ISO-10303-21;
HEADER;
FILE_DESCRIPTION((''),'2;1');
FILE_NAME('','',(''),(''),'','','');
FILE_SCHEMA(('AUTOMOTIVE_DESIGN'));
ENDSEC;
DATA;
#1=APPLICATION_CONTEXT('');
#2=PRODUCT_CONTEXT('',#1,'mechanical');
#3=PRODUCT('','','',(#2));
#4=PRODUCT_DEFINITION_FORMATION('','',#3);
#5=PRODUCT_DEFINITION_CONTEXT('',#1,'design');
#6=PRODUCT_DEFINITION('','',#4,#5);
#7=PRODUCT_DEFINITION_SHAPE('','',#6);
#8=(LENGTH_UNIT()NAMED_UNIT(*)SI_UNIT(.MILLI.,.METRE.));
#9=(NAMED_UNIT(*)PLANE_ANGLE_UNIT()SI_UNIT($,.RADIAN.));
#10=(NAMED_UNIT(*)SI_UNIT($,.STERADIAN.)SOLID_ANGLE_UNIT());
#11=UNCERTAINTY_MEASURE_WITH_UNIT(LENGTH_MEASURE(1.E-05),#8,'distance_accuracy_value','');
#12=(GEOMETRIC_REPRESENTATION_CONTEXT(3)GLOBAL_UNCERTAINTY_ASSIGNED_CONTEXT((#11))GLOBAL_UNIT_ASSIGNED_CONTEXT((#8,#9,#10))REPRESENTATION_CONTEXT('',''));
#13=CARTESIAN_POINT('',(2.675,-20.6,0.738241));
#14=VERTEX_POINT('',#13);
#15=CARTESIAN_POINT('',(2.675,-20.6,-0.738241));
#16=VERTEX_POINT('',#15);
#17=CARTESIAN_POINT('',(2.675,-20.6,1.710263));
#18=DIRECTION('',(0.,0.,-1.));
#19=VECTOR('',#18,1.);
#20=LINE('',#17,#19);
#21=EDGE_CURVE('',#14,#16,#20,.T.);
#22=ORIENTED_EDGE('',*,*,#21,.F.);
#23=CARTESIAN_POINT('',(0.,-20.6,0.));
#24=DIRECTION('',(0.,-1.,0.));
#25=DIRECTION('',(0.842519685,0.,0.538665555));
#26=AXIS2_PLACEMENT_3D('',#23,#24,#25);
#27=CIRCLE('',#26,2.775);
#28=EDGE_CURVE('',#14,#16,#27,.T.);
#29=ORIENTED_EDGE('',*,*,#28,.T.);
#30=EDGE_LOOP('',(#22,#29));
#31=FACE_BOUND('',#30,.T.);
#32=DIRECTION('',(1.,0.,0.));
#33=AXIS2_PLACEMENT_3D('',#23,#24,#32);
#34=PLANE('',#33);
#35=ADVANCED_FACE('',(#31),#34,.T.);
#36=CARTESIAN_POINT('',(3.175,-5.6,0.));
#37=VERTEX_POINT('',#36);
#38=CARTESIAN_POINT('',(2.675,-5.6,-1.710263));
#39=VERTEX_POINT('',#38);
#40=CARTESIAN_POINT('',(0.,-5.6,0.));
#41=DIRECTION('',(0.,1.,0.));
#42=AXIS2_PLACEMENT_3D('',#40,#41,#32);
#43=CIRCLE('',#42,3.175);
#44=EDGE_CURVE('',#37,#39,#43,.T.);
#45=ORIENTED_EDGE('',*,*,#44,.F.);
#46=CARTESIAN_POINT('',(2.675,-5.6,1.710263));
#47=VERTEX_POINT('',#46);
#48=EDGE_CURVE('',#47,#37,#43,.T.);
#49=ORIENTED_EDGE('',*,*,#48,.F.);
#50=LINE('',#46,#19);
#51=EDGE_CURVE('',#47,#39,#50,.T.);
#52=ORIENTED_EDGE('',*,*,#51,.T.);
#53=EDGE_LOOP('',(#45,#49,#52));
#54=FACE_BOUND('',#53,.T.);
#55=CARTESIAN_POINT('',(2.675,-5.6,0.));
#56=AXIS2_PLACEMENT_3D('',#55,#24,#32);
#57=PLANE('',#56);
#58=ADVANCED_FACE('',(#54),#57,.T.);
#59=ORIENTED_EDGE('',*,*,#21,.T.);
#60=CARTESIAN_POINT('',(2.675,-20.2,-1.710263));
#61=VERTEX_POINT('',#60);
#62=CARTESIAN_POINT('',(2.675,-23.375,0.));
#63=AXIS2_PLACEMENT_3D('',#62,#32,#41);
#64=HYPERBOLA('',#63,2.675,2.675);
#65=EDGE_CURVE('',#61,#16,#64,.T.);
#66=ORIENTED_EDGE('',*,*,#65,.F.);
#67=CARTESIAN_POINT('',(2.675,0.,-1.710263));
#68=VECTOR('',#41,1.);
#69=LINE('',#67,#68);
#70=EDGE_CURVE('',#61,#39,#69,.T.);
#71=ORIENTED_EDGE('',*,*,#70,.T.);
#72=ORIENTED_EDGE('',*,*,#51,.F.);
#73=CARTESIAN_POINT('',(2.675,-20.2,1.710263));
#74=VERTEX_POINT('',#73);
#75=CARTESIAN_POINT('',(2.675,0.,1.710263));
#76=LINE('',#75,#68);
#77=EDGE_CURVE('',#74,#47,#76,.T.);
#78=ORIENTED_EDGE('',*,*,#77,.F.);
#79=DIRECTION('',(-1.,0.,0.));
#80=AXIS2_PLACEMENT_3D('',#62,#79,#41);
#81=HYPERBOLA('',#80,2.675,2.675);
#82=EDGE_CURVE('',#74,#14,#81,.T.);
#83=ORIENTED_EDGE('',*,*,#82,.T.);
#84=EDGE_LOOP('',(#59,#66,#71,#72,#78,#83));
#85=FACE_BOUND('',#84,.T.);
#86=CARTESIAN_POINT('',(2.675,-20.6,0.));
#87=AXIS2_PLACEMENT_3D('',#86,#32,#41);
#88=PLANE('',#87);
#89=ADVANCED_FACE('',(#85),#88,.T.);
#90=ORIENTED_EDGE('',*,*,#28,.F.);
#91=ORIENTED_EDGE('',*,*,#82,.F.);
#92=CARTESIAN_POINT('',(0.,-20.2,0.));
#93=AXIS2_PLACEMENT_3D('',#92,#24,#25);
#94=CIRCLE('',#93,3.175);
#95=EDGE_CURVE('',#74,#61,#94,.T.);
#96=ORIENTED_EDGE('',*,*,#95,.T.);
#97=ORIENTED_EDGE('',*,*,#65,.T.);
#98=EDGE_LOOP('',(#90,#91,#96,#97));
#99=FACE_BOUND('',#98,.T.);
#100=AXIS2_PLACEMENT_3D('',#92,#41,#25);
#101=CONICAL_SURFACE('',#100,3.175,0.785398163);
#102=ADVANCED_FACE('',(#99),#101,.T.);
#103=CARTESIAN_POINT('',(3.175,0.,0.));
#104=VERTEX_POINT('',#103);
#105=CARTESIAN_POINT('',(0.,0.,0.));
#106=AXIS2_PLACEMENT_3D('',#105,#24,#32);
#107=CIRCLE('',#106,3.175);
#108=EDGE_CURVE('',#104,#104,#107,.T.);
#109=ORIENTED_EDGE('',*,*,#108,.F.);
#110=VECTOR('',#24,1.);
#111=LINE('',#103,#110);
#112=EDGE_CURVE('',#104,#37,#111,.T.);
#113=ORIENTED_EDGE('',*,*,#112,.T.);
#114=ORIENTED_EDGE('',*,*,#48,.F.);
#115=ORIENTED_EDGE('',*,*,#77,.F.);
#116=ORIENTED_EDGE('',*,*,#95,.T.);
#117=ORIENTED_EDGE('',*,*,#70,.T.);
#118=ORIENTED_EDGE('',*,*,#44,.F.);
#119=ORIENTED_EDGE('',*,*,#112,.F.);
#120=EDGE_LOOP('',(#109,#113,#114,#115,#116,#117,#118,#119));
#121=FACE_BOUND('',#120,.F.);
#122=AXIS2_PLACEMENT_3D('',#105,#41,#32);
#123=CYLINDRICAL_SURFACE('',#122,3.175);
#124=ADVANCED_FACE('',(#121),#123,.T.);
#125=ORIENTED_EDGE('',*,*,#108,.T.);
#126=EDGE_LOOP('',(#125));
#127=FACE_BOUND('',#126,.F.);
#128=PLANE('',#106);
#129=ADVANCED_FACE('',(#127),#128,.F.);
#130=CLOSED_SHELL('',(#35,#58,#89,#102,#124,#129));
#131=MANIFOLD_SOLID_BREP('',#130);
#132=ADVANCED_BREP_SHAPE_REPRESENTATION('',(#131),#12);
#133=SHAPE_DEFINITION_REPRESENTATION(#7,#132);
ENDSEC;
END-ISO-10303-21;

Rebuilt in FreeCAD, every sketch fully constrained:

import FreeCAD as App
import Part
import Sketcher
from FreeCAD import Vector
Q = App.Units.Quantity


def edges_at(feature, points):
    """Names of the edges that pass closest to the given points."""
    edges = feature.Shape.Edges
    near = lambda p: min(range(len(edges)), key=lambda i: edges[i].distToShape(Part.Vertex(*p))[0])
    return sorted({f"Edge{near(p) + 1}" for p in points})


def add_polygon(sketch, points):
    """Adds a closed chain of lines whose ends are joined by coincident constraints."""
    first, n = sketch.GeometryCount, len(points)
    for a, b in zip(points, points[1:] + points[:1]):
        sketch.addGeometry(Part.LineSegment(App.Vector(*a, 0), App.Vector(*b, 0)), False)
    for i in range(n):
        sketch.addConstraint(Sketcher.Constraint("Coincident", first + i, 2, first + (i + 1) % n, 1))

doc = App.newDocument("Part")
body = doc.addObject("PartDesign::Body", "Body")

# Sketch on XZ plane
sketch1 = body.newObject("Sketcher::SketchObject", "Sketch")
sketch1.AttachmentSupport = (doc.getObject("XZ_Plane"), [""])
sketch1.MapMode = "FlatFace"
sketch1.addGeometry(Part.Circle(Vector(0, 0, 0), Vector(0, 0, 1), 3.175), False)
sketch1.addConstraint([
    Sketcher.Constraint("Coincident", 0, 3, -1, 1),
    Sketcher.Constraint("Diameter", 0, Q("6.35 mm")),
])
pad1 = body.newObject("PartDesign::Pad", "Pad")
pad1.Profile = sketch1
pad1.Length = 20.6

# Sketch on XY plane
sketch2 = body.newObject("Sketcher::SketchObject", "Sketch001")
sketch2.AttachmentSupport = (doc.getObject("XY_Plane"), [""])
sketch2.MapMode = "FlatFace"
add_polygon(sketch2, [(2.675, -5.6), (2.675, -20.6), (3.175, -20.6), (3.175, -5.6)])  # lines 0-3
sketch2.addConstraint([
    Sketcher.Constraint("Vertical", 0),
    Sketcher.Constraint("Horizontal", 1),
    Sketcher.Constraint("Vertical", 2),
    Sketcher.Constraint("Horizontal", 3),
    Sketcher.Constraint("DistanceY", 0, 2, 0, 1, Q("15 mm")),
    Sketcher.Constraint("DistanceX", 1, 1, 1, 2, Q("0.5 mm")),
    Sketcher.Constraint("DistanceY", 0, 2, -1, 1, Q("20.6 mm")),
    Sketcher.Constraint("DistanceX", -1, 1, 0, 2, Q("2.675 mm")),
])
pocket1 = body.newObject("PartDesign::Pocket", "Pocket")
pocket1.Profile = sketch2
pocket1.Type = "ThroughAll"
pocket1.Midplane = True
doc.recompute()

chamfer = body.newObject("PartDesign::Chamfer", "Chamfer")
chamfer.Base = (pocket1, edges_at(pocket1, [(-3.175, -20.6, 0)]))
chamfer.Size = 0.4

doc.recompute()
